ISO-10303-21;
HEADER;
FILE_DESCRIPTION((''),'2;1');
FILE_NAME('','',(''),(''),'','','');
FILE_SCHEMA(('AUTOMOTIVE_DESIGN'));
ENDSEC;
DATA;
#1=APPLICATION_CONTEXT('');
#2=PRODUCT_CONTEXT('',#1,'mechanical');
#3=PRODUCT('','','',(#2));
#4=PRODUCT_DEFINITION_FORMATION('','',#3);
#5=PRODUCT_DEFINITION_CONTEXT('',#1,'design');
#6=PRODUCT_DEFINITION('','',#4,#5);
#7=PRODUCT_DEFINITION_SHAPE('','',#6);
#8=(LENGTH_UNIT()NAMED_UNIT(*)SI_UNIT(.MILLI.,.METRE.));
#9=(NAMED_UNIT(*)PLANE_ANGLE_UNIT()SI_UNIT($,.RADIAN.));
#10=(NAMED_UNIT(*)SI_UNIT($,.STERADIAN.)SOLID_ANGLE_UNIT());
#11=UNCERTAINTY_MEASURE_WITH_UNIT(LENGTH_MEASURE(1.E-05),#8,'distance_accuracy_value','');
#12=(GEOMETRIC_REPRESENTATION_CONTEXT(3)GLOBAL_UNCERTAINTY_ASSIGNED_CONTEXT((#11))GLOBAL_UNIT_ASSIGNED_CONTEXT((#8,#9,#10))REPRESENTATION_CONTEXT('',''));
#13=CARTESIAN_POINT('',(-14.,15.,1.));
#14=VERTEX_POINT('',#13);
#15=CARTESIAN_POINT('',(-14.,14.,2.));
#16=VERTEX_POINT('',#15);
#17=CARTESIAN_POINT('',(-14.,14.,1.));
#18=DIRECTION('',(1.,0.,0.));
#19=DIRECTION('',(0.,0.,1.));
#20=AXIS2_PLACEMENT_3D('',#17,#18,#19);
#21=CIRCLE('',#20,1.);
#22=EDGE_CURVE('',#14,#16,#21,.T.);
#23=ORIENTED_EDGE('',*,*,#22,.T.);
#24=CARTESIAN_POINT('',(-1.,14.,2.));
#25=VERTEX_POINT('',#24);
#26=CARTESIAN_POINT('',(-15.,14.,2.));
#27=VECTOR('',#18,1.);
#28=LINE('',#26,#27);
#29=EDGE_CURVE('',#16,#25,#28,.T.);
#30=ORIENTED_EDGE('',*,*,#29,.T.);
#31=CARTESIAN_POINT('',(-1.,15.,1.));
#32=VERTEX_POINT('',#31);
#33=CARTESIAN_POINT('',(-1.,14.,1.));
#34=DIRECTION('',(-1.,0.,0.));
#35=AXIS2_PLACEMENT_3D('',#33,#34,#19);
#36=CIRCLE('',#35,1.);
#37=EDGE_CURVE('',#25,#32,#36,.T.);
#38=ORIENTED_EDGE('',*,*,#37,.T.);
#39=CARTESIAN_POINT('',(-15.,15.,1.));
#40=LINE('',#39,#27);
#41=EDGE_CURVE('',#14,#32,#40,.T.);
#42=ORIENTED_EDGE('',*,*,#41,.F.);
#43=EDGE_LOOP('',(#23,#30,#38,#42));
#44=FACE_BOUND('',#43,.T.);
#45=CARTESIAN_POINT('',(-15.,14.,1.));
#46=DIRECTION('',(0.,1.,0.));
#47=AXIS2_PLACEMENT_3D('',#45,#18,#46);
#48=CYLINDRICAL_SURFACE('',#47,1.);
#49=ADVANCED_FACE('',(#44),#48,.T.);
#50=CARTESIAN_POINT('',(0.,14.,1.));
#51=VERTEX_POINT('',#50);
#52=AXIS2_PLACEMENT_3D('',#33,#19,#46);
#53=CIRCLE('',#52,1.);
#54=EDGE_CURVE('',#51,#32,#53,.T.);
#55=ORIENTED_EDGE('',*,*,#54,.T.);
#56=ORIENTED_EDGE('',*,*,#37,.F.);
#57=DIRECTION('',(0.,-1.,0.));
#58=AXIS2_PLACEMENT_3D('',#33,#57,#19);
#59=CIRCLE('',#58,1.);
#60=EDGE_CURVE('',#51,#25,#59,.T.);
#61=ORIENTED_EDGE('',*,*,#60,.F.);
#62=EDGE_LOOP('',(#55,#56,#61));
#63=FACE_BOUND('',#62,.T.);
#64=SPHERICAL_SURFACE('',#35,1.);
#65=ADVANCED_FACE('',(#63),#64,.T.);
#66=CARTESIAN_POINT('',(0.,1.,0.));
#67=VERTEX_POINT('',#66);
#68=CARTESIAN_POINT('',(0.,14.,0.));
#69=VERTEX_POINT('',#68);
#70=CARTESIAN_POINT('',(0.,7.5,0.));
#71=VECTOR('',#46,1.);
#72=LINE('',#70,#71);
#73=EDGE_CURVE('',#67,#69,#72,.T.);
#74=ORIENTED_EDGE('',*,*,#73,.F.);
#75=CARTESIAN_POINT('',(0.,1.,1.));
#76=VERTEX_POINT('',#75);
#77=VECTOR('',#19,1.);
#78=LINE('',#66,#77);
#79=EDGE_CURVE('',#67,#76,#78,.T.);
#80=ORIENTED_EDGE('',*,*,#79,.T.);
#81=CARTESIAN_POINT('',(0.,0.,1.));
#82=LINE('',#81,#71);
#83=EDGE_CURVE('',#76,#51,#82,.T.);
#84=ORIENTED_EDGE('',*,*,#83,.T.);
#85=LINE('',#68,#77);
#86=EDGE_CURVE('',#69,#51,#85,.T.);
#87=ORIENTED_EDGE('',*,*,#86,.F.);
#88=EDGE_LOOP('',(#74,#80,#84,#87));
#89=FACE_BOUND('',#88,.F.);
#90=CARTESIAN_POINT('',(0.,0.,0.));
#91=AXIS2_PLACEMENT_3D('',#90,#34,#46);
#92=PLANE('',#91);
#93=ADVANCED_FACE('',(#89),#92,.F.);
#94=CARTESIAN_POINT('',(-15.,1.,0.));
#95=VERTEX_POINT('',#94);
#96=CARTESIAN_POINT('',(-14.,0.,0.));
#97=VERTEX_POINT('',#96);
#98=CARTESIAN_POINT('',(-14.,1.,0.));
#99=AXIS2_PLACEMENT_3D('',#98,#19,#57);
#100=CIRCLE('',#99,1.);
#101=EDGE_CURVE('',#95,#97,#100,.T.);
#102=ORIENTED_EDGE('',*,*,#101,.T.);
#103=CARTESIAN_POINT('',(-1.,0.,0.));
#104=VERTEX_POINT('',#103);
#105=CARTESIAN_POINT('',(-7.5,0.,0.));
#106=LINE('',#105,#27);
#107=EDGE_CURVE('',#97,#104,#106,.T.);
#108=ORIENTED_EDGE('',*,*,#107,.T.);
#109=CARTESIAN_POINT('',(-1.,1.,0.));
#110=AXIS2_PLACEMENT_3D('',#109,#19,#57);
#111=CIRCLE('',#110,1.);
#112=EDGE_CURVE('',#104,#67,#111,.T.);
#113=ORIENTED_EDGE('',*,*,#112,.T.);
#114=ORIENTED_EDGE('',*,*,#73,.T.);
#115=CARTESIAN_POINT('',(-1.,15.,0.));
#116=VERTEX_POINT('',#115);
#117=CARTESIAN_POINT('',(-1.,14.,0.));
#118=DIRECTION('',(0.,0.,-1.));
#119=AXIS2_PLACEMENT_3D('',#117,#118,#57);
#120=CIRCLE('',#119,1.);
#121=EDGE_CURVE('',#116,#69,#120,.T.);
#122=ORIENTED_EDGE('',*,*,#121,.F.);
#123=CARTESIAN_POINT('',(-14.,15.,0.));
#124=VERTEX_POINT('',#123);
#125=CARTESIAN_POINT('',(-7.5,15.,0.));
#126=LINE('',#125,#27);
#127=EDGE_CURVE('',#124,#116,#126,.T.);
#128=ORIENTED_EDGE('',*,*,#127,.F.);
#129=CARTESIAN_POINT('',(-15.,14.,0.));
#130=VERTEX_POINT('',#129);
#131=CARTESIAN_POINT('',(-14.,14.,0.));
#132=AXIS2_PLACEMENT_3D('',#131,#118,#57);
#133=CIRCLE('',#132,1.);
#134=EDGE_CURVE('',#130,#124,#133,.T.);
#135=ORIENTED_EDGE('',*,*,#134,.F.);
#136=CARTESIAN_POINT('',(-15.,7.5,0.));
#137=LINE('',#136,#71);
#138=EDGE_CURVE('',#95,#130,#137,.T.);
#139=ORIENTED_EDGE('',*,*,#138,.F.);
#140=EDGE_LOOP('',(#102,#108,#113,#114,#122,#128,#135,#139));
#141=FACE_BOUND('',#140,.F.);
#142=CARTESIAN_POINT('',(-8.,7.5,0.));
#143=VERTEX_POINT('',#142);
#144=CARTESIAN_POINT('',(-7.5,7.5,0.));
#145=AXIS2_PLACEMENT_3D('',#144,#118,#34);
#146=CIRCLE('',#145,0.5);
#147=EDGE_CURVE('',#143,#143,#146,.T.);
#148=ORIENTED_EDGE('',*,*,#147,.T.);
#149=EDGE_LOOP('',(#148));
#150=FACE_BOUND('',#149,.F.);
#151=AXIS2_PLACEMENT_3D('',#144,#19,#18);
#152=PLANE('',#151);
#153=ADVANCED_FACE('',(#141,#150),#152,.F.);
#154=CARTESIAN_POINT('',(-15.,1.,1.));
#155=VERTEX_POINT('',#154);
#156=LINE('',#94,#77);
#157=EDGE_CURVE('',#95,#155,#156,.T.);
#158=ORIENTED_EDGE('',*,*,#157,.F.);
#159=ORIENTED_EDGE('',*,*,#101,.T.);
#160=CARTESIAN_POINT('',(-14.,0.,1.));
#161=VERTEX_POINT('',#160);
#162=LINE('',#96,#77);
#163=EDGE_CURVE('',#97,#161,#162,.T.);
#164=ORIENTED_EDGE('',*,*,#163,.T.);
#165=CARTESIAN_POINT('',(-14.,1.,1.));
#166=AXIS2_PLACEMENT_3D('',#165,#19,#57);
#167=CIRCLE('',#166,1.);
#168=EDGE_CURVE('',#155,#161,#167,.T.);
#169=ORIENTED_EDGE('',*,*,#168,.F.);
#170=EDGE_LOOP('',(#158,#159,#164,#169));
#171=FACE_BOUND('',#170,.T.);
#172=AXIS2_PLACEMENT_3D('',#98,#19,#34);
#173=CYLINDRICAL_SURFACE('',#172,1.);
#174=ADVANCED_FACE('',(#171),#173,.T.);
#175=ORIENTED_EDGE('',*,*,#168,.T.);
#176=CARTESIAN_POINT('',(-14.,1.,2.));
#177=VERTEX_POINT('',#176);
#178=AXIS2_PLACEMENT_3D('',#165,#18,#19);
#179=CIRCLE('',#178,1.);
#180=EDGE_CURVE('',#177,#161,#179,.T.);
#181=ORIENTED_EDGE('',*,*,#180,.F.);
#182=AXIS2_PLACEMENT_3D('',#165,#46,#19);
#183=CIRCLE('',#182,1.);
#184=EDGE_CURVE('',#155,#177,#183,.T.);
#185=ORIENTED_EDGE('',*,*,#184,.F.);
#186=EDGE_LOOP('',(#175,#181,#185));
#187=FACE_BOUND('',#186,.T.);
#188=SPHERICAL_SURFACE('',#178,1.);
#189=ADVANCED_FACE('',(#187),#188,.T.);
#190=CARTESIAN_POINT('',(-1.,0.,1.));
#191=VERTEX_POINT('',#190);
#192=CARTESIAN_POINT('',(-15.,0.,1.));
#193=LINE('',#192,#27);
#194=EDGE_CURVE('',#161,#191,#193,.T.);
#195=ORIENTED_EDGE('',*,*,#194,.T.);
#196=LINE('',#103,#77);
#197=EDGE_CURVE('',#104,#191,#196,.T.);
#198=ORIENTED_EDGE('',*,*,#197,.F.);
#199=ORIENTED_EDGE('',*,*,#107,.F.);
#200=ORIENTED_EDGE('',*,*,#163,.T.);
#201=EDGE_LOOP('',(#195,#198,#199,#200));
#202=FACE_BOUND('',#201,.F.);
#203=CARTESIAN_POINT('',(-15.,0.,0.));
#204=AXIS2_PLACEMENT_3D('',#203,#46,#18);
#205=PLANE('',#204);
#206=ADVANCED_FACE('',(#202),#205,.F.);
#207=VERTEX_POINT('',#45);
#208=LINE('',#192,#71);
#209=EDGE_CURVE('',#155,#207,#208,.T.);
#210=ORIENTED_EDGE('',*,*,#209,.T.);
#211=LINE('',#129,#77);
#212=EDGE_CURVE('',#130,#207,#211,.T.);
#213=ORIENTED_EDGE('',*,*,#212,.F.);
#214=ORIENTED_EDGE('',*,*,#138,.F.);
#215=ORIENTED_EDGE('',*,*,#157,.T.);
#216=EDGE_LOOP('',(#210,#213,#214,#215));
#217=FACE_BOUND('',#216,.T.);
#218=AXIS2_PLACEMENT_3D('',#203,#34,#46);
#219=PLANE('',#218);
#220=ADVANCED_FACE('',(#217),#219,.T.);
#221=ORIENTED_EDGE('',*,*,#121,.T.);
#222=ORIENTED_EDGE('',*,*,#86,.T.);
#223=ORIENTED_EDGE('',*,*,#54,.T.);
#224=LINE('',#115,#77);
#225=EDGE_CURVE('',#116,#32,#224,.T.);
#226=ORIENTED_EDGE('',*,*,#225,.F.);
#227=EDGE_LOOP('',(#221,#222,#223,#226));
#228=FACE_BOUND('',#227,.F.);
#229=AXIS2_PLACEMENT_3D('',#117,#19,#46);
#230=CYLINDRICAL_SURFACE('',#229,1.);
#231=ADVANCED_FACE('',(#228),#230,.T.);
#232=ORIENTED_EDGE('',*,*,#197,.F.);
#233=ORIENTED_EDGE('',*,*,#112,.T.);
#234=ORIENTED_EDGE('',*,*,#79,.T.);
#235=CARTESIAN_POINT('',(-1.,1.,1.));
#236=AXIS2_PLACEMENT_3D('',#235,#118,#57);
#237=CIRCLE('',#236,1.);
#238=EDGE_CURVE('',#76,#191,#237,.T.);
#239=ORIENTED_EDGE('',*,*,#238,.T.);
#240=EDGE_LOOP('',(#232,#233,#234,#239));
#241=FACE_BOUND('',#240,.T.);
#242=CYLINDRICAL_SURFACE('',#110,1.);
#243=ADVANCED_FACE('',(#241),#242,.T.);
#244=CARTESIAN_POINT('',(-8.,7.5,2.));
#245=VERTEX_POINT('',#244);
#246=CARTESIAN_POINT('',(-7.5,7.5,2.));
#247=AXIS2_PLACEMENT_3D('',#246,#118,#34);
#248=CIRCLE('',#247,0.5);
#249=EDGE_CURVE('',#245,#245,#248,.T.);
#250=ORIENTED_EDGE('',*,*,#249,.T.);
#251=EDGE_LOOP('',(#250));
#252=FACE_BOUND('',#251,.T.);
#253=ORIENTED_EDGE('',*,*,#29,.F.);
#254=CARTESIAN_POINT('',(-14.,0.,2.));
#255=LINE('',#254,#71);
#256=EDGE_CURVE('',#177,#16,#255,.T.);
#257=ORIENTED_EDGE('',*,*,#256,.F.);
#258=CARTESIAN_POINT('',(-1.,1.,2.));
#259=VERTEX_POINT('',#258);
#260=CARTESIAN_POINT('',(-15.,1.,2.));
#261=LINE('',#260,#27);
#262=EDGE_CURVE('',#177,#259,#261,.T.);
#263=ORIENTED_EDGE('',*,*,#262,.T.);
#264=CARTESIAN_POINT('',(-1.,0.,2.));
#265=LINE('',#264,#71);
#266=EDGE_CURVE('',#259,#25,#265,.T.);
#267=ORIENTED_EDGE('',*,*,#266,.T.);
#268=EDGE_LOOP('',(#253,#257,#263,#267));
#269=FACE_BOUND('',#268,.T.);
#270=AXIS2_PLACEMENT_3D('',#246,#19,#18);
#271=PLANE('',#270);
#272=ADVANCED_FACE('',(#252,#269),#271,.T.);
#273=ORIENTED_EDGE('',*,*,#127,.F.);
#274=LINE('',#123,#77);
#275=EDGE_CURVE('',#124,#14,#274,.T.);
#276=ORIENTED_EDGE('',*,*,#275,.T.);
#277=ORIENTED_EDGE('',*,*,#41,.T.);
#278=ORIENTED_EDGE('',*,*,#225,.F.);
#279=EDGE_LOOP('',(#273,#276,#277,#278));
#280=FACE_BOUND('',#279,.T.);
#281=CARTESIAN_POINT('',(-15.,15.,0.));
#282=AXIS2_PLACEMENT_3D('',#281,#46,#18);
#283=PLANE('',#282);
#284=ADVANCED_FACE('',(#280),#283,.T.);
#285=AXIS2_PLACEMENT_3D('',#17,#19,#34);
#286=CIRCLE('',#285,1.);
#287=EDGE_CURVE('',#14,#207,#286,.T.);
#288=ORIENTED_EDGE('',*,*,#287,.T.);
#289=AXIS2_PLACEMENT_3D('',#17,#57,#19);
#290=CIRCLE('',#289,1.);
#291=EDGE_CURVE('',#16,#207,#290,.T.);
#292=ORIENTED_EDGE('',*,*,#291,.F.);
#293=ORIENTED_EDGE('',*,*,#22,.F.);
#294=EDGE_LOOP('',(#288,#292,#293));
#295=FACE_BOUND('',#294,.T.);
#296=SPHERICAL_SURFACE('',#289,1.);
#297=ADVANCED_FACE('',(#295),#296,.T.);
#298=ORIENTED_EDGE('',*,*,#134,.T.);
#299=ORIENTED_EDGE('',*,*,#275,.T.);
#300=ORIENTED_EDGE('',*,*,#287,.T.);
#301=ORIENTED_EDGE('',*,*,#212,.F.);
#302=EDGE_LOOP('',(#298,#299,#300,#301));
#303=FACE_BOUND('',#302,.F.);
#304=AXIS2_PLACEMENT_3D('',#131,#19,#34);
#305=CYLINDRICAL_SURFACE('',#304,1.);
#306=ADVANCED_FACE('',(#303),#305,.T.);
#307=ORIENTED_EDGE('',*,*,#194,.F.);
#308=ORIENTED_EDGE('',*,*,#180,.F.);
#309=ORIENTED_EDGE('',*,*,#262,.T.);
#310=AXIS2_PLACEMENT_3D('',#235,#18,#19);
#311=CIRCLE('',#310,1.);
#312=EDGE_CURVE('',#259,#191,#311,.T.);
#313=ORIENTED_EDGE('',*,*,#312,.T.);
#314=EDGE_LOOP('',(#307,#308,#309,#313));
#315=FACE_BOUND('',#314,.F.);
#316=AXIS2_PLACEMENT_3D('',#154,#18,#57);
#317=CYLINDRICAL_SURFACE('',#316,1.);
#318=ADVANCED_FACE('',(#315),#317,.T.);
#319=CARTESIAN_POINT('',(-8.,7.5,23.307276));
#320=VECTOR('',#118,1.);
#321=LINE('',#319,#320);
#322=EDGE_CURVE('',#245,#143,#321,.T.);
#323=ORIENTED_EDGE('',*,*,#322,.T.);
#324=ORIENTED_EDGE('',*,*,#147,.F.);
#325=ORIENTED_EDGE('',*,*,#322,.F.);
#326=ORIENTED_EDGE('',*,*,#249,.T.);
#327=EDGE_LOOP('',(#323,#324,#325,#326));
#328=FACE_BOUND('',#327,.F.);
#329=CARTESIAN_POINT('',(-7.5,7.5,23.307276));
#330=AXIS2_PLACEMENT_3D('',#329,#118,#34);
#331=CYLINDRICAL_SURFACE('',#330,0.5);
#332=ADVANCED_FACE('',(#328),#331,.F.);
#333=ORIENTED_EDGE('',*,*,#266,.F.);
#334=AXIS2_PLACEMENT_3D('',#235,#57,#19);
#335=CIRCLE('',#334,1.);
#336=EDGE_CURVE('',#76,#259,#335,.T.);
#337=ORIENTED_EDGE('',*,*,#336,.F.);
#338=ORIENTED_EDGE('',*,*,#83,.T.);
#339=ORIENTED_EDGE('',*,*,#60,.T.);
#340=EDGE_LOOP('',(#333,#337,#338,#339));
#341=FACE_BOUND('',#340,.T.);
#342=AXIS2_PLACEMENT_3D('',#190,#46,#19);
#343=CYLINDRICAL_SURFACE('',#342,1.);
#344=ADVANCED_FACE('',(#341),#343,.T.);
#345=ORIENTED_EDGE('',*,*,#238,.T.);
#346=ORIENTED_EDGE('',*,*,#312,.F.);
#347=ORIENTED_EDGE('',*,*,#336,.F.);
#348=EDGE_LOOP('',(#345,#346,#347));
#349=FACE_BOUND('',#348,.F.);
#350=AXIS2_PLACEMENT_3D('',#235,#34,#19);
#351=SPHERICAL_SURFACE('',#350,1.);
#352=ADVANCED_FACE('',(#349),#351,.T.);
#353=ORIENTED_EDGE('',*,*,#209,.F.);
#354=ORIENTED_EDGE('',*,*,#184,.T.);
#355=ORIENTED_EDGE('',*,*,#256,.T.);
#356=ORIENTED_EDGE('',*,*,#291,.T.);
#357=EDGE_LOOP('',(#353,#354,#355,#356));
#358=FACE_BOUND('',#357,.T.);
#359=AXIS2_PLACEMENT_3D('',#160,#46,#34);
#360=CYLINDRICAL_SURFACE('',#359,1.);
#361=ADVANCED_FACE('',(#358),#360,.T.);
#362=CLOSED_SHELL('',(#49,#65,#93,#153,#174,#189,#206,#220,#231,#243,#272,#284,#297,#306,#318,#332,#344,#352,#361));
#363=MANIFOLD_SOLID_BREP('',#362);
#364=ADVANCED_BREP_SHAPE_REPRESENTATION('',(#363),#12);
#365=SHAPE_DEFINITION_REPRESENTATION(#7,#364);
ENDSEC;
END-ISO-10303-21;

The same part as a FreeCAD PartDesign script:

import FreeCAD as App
import Part
import Sketcher


def edges_at(feature, points):
    """Names of the edges that pass closest to the given points."""
    edges = feature.Shape.Edges
    near = lambda p: min(range(len(edges)), key=lambda i: edges[i].distToShape(Part.Vertex(*p))[0])
    return sorted({f"Edge{near(p) + 1}" for p in points})


def add_polygon(sketch, points):
    """Adds a closed chain of lines whose ends are joined by coincident constraints."""
    first, n = sketch.GeometryCount, len(points)
    for a, b in zip(points, points[1:] + points[:1]):
        sketch.addGeometry(Part.LineSegment(App.Vector(*a, 0), App.Vector(*b, 0)), False)
    for i in range(n):
        sketch.addConstraint(Sketcher.Constraint("Coincident", first + i, 2, first + (i + 1) % n, 1))

doc = App.newDocument("Part")
body = doc.addObject("PartDesign::Body", "Body")

# Sketch on XY plane
sketch1 = body.newObject("Sketcher::SketchObject", "Sketch")
sketch1.AttachmentSupport = (doc.getObject("XY_Plane"), [""])
sketch1.MapMode = "FlatFace"
add_polygon(sketch1, [(-15, 15), (-15, 0), (0, 0), (0, 15)])  # lines 0-3
sketch1.addConstraint(Sketcher.Constraint("Vertical", 0))
sketch1.addConstraint(Sketcher.Constraint("Horizontal", 1))
sketch1.addConstraint(Sketcher.Constraint("Vertical", 2))
sketch1.addConstraint(Sketcher.Constraint("Horizontal", 3))
sketch1.addConstraint(Sketcher.Constraint("Coincident", 1, 2, -1, 1))
sketch1.addConstraint(Sketcher.Constraint("Equal", 3, 0))
sketch1.addConstraint(Sketcher.Constraint("DistanceX", 1, 1, 1, 2, 15.0))
pad1 = body.newObject("PartDesign::Pad", "Pad")
pad1.Profile = sketch1
pad1.Length = 2

# Sketch on XY plane
sketch2 = body.newObject("Sketcher::SketchObject", "Sketch001")
sketch2.AttachmentSupport = (doc.getObject("XY_Plane"), [""])
sketch2.MapMode = "FlatFace"
sketch2.AttachmentOffset = App.Placement(App.Vector(0, 0, 2), App.Rotation())
sketch2.addGeometry(Part.Circle(App.Vector(-7.5, 7.5, 0), App.Vector(0, 0, 1), 0.5), False)
sketch2.addConstraint(Sketcher.Constraint("Diameter", 0, 1.0))
sketch2.addConstraint(Sketcher.Constraint("DistanceX", 0, 3, -1, 1, 7.5))
sketch2.addConstraint(Sketcher.Constraint("DistanceY", -1, 1, 0, 3, 7.5))
doc.recompute()
hole = body.newObject("PartDesign::Hole", "Hole")
hole.Profile = sketch2
hole.ThreadType = "None"
hole.Diameter = 1
hole.DepthType = "ThroughAll"
doc.recompute()

fillet = body.newObject("PartDesign::Fillet", "Fillet")
fillet.Base = (hole, edges_at(hole, [
    (-7.5, 0, 2),
    (-15, 7.5, 2),
    (-7.5, 15, 2),
    (0, 7.5, 2),
    (0, 0, 1),
    (-15, 0, 1),
    (0, 15, 1),
    (-15, 15, 1),
]))
fillet.Radius = 1

doc.recompute()
